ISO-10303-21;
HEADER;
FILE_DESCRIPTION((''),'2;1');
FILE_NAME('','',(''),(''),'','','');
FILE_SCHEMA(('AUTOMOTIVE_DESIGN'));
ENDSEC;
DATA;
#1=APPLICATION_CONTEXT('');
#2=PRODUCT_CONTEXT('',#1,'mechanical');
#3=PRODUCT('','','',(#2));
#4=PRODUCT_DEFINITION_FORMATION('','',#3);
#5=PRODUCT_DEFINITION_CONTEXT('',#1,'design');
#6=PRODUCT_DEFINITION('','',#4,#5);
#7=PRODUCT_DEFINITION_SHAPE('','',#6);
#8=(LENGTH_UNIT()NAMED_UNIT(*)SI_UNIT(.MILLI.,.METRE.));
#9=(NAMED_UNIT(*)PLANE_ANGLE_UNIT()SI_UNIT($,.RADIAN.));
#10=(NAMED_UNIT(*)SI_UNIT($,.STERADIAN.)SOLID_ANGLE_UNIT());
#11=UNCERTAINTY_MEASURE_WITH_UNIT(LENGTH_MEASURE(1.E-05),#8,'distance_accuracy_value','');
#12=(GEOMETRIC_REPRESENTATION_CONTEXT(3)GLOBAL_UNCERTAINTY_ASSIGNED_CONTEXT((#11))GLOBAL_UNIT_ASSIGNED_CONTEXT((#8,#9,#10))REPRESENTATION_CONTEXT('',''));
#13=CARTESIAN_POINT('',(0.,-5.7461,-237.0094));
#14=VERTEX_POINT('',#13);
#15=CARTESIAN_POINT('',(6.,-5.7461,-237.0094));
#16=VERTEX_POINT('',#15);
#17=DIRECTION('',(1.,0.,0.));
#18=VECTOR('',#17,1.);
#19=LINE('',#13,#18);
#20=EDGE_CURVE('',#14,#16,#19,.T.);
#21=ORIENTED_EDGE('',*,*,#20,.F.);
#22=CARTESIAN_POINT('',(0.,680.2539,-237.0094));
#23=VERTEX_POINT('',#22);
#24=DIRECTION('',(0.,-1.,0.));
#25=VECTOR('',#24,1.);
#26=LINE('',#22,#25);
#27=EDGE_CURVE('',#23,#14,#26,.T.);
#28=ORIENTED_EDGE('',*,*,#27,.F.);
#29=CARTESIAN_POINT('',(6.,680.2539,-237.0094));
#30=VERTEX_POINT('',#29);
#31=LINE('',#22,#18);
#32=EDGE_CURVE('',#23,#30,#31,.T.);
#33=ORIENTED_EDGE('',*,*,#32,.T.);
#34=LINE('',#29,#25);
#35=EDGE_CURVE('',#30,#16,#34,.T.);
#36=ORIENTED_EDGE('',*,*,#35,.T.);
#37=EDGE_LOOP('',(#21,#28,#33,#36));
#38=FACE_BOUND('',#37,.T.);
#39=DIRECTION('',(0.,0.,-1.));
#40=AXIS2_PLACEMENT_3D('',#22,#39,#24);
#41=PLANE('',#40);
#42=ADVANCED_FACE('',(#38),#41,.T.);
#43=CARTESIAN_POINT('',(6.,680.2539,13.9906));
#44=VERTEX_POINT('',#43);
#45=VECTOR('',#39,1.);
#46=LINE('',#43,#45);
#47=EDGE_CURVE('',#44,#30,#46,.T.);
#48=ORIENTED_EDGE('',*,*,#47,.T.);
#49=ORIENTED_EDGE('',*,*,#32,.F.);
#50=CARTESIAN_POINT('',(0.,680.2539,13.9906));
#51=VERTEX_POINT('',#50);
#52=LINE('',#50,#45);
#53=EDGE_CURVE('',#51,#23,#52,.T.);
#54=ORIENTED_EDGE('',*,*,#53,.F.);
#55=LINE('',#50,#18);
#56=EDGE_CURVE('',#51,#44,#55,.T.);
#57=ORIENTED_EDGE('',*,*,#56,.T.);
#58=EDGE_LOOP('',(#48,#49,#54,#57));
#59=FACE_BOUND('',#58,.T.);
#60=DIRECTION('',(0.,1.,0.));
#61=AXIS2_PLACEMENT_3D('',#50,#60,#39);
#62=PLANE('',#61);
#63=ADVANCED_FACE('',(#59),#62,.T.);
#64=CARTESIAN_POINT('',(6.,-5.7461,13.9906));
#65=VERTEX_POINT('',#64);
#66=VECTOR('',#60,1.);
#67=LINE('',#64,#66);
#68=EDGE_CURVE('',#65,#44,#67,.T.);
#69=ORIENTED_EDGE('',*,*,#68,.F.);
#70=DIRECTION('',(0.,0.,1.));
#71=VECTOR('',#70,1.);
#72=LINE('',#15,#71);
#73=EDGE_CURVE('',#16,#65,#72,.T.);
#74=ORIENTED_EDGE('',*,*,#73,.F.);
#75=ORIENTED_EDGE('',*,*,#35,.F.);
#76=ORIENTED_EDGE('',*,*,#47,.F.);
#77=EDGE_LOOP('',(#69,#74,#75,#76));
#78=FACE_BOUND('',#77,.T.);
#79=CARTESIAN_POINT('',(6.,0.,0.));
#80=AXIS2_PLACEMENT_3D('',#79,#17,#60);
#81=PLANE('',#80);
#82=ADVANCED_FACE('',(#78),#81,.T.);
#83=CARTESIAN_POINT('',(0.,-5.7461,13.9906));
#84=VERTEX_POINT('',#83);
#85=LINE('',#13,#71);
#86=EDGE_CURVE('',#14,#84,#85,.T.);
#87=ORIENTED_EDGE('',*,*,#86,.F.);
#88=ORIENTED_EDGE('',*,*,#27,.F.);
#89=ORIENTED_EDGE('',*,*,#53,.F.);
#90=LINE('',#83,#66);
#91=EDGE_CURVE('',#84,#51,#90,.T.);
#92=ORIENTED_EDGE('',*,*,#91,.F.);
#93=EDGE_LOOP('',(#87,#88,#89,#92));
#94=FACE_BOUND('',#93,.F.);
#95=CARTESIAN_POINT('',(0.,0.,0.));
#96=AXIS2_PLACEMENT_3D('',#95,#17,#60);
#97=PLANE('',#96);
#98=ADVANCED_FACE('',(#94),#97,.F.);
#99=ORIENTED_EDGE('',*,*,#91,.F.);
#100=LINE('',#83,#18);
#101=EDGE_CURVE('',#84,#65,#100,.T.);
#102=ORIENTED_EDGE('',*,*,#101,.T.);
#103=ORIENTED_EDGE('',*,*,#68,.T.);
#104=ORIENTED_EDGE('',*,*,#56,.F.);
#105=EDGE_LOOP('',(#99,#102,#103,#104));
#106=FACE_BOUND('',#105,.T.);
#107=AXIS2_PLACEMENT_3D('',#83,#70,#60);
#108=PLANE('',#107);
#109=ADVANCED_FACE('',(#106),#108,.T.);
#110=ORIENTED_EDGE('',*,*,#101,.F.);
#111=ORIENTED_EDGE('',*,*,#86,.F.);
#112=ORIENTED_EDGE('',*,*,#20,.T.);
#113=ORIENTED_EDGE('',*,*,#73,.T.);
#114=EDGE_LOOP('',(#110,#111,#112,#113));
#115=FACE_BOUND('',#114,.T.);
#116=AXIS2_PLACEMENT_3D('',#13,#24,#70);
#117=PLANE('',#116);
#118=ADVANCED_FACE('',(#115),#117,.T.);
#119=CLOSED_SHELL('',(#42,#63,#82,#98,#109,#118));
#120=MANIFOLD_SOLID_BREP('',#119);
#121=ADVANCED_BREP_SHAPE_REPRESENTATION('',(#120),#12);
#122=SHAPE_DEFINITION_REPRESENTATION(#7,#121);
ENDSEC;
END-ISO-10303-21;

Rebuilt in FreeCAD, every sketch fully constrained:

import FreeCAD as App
import Part
import Sketcher

V = App.Vector


def add_polygon(sketch, points):
    """Adds a closed chain of lines whose ends are joined by coincident constraints."""
    first, n = sketch.GeometryCount, len(points)
    for a, b in zip(points, points[1:] + points[:1]):
        sketch.addGeometry(Part.LineSegment(App.Vector(*a, 0), App.Vector(*b, 0)), False)
    for i in range(n):
        sketch.addConstraint(Sketcher.Constraint("Coincident", first + i, 2, first + (i + 1) % n, 1))

doc = App.newDocument("Part")
body = doc.addObject("PartDesign::Body", "Body")

sketch1 = doc.addObject("Sketcher::SketchObject", "Sketch")
body.addObject(sketch1)
sketch1.AttachmentSupport = (doc.YZ_Plane, [""])
sketch1.MapMode = "FlatFace"
add_polygon(sketch1, [(680, 14), (-6, 14), (-6, -237), (680, -237)])
sketch1.addConstraint([
    Sketcher.Constraint("Horizontal", 0),
    Sketcher.Constraint("Vertical", 1),
    Sketcher.Constraint("Horizontal", 2),
    Sketcher.Constraint("Vertical", 3),
    Sketcher.Constraint("DistanceX", 0, 2, 0, 1, 686.0),
    Sketcher.Constraint("DistanceY", 1, 2, 1, 1, 251.0),
    Sketcher.Constraint("DistanceX", 0, 2, -1, 1, 5.746),
    Sketcher.Constraint("DistanceY", -1, 1, 0, 2, 13.9906),
])
pad1 = doc.addObject("PartDesign::Pad", "Pad")
body.addObject(pad1)
pad1.Profile = sketch1
pad1.Length = 6

doc.recompute()
